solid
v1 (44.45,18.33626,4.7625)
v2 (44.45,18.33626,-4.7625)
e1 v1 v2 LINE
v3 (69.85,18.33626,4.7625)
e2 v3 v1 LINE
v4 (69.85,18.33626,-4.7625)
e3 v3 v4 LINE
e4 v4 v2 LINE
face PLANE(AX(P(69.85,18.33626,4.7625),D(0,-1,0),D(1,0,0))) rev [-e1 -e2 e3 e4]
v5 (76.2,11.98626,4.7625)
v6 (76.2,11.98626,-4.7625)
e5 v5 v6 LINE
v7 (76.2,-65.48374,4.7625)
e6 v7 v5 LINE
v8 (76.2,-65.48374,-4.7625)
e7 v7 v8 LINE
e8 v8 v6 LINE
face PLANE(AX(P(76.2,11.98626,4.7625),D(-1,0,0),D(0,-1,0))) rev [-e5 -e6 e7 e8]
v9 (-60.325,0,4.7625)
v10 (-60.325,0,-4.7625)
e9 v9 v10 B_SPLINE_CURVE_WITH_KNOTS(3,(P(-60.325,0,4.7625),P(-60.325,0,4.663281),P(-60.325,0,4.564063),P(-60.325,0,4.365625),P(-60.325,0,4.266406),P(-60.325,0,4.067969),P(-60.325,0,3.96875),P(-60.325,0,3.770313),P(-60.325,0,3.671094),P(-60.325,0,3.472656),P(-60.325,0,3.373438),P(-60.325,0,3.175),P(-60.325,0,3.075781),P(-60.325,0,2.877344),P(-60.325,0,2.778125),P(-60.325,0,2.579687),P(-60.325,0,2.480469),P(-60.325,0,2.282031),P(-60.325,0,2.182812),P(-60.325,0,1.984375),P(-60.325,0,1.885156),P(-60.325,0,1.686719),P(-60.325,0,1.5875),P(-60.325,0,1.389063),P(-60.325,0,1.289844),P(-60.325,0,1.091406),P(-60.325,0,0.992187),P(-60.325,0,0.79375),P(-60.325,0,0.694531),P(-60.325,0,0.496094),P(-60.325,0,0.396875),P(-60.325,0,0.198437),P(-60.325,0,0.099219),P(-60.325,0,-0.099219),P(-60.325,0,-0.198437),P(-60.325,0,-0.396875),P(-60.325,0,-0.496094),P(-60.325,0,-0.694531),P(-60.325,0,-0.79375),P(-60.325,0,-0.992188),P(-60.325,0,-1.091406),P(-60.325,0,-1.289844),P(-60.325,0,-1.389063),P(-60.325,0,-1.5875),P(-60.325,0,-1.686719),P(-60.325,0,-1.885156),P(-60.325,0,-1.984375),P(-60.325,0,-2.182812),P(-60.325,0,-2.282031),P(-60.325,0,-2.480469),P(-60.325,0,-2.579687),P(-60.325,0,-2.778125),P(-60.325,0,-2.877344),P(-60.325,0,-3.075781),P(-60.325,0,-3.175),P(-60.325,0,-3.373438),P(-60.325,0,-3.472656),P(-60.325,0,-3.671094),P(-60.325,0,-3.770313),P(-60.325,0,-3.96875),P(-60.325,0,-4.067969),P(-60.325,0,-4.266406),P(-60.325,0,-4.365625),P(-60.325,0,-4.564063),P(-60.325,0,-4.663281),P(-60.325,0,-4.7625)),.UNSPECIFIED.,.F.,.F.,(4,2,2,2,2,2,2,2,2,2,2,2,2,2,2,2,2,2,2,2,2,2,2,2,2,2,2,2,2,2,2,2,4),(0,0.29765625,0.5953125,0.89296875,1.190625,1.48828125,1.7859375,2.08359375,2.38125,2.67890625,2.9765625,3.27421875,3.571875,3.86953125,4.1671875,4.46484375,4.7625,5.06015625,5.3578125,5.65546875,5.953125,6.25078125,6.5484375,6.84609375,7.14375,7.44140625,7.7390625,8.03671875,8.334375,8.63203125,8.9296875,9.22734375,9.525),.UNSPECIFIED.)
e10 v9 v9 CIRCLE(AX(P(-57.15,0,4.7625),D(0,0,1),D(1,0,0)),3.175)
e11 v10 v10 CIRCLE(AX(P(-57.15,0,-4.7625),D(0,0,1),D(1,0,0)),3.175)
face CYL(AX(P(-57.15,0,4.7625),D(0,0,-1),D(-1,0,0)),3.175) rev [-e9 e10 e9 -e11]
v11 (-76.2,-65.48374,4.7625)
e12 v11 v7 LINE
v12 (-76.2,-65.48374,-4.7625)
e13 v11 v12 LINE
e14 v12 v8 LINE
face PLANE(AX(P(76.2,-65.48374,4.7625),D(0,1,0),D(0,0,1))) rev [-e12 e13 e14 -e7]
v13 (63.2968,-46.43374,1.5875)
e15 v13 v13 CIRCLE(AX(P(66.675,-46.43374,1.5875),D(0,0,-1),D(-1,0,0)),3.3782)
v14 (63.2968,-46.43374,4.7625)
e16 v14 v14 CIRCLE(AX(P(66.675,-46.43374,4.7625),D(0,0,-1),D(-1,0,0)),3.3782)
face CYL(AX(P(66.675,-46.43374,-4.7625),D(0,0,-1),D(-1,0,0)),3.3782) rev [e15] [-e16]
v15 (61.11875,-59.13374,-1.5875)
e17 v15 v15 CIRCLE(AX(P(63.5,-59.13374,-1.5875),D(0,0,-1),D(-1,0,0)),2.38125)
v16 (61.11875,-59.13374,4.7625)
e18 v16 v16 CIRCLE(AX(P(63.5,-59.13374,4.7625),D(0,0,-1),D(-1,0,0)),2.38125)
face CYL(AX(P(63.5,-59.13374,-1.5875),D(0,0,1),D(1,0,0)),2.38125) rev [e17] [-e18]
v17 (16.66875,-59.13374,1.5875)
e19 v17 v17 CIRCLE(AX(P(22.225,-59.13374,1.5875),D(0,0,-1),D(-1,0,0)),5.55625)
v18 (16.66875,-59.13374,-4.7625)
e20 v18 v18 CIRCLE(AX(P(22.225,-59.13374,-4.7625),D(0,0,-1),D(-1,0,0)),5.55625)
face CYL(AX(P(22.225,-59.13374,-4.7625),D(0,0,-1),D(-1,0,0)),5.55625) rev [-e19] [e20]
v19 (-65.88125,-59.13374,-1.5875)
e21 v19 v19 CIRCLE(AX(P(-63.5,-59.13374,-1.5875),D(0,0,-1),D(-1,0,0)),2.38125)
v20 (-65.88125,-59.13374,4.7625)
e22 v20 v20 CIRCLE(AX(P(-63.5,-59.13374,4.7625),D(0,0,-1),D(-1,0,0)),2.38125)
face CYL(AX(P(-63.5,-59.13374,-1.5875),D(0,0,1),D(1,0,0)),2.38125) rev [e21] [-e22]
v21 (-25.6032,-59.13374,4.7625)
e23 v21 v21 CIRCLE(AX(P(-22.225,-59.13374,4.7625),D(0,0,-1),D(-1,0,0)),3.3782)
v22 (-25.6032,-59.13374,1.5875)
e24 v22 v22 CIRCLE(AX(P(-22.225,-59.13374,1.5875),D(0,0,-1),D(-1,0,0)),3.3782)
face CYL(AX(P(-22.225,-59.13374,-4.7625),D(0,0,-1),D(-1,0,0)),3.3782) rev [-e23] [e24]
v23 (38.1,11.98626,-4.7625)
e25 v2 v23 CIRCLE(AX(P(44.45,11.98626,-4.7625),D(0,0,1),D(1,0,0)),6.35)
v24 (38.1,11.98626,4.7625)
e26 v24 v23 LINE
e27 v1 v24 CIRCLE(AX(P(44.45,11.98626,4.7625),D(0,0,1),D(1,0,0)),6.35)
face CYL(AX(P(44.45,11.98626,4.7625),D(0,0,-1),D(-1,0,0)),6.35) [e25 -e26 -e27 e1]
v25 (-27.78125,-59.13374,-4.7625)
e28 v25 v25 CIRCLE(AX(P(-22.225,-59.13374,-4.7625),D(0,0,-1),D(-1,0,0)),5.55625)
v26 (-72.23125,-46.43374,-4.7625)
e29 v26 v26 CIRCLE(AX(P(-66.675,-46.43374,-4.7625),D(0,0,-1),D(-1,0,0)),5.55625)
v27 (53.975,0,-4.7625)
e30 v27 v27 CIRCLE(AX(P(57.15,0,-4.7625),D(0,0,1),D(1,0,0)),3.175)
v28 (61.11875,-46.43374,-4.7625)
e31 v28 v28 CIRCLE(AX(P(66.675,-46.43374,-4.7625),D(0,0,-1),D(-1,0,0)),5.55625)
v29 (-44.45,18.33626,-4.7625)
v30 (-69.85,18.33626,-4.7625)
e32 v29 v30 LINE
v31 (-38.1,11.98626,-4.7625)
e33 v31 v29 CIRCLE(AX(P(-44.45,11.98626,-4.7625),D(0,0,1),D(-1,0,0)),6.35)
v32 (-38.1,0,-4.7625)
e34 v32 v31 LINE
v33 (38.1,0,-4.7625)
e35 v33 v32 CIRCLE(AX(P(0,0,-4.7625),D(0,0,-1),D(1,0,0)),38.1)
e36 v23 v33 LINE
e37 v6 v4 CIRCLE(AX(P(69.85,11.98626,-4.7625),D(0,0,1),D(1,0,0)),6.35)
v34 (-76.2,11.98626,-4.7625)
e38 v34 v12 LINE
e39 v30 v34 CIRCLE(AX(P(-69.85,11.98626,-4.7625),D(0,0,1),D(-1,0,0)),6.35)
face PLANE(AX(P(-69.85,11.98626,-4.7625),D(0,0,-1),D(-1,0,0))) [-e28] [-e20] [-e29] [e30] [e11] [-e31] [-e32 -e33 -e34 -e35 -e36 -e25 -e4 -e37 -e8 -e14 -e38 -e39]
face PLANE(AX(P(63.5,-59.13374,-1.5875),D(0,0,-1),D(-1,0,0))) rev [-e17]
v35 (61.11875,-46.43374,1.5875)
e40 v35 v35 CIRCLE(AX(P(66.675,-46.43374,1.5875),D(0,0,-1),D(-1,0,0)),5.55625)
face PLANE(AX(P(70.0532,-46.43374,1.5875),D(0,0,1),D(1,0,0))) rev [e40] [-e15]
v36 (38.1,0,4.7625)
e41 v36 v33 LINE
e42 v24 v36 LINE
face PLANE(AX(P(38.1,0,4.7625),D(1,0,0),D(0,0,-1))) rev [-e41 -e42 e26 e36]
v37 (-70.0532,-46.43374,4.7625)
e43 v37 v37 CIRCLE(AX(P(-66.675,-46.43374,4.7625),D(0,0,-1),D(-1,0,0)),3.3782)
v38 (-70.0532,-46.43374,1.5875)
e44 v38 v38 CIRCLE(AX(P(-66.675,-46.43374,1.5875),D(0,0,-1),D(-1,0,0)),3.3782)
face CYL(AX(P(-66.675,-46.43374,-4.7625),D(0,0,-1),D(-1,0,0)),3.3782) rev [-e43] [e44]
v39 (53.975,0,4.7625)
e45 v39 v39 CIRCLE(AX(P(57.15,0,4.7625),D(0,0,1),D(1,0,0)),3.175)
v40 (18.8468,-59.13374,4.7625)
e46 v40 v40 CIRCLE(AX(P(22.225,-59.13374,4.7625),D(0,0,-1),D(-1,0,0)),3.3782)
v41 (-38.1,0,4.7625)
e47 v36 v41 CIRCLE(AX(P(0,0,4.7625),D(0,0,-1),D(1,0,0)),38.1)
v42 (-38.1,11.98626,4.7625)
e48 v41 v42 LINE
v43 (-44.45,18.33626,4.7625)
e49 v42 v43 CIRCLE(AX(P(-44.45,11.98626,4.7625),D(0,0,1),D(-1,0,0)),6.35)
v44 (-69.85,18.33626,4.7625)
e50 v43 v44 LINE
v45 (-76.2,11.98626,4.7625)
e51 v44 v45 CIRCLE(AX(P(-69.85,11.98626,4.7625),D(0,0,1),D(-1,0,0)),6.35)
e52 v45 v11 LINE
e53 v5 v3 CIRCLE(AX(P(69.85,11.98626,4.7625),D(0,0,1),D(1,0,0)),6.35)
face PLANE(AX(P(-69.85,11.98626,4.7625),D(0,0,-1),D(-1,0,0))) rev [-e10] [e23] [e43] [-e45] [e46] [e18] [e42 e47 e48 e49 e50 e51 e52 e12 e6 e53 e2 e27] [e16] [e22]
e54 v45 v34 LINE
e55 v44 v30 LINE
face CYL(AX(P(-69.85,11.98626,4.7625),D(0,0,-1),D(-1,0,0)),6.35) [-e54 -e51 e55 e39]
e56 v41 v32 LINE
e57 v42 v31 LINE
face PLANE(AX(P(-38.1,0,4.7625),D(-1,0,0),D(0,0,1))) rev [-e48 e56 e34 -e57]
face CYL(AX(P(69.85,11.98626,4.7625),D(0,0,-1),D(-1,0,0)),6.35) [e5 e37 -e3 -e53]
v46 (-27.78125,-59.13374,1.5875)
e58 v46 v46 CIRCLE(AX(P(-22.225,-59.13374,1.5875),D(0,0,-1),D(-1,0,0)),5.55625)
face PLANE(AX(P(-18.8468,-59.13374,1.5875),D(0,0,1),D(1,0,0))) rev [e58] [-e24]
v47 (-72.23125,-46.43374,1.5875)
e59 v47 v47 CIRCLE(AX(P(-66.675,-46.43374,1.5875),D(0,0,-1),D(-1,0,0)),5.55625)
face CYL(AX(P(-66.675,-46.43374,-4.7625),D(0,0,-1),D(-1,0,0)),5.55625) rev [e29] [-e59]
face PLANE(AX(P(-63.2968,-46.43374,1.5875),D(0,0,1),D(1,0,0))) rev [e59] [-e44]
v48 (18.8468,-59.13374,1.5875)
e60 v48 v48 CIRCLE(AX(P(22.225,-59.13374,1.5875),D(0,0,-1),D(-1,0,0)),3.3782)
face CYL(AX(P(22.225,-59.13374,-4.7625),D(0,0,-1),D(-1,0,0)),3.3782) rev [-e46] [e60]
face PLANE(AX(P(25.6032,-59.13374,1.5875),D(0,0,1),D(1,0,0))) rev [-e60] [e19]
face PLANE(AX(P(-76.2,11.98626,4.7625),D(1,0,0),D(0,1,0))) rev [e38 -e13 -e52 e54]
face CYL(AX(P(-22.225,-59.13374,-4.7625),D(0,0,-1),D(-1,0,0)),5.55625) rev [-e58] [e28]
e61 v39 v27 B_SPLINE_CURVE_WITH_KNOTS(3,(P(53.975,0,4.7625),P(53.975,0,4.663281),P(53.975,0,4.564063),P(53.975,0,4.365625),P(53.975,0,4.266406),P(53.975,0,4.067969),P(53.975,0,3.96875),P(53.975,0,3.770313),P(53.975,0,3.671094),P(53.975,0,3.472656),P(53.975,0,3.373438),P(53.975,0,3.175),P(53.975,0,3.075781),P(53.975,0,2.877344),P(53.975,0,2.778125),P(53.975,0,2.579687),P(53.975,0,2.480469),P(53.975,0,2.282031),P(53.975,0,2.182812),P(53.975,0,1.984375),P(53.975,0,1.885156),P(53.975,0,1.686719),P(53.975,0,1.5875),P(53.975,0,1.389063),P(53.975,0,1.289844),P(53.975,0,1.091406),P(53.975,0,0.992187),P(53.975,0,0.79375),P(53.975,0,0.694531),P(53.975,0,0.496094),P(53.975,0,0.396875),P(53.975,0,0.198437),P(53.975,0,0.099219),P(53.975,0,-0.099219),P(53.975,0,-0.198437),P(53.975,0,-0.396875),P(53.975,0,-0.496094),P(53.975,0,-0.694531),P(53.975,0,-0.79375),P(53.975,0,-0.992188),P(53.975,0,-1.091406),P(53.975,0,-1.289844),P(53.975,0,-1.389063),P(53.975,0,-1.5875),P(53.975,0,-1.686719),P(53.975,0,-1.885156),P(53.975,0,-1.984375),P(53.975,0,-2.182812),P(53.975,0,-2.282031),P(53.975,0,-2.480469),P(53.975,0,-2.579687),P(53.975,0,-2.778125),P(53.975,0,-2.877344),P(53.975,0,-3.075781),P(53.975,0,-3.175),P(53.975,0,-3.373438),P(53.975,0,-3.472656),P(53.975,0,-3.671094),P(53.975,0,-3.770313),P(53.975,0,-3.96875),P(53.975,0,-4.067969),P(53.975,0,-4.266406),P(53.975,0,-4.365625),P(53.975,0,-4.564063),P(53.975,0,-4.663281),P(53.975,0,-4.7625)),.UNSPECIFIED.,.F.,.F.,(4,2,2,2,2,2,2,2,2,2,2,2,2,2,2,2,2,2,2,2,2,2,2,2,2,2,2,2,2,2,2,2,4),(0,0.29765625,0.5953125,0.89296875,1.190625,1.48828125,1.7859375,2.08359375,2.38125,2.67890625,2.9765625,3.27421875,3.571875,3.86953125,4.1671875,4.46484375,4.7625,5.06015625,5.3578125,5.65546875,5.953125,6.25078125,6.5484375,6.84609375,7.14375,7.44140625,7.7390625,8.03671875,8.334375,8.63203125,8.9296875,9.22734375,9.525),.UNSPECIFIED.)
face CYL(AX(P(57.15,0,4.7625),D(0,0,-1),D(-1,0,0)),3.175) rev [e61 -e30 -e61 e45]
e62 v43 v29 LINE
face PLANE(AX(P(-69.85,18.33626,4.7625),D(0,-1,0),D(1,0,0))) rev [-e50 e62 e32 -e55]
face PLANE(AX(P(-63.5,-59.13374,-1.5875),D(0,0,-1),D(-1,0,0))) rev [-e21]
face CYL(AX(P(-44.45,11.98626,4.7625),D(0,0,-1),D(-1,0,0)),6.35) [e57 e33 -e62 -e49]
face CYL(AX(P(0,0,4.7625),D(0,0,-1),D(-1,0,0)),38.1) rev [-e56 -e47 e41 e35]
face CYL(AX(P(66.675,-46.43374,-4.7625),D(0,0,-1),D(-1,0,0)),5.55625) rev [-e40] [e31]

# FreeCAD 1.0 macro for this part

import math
import FreeCAD as App
import Part
import Sketcher
from FreeCAD import Vector
Q = App.Units.Quantity

doc = App.newDocument("Part")
body = doc.addObject("PartDesign::Body", "Body")

sketch1 = body.newObject("Sketcher::SketchObject", "Sketch")
sketch1.AttachmentSupport = (doc.getObject("XY_Plane"), [""])
sketch1.MapMode = "FlatFace"
sketch1.addGeometry([
    Part.LineSegment(Vector(76.2, -65.5, 0), Vector(76.2, 12, 0)),
    Part.ArcOfCircle(Part.Circle(Vector(69.9, 12, 0), Vector(0, 0, 1), 6.3), math.radians(0), math.radians(90)),
    Part.LineSegment(Vector(69.8, 18.3, 0), Vector(44.5, 18.3, 0)),
    Part.ArcOfCircle(Part.Circle(Vector(44.4, 12, 0), Vector(0, 0, 1), 6.3), math.radians(90), math.radians(180)),
    Part.LineSegment(Vector(38.1, 12, 0), Vector(38.1, 0, 0)),
    Part.ArcOfCircle(Part.Circle(Vector(0, 0, 0), Vector(0, 0, 1), 38.1), math.radians(180), math.radians(360)),
    Part.LineSegment(Vector(-38.1, 0, 0), Vector(-38.1, 12, 0)),
    Part.ArcOfCircle(Part.Circle(Vector(-44.4, 12, 0), Vector(0, 0, 1), 6.3), math.radians(0), math.radians(90)),
    Part.LineSegment(Vector(-44.5, 18.3, 0), Vector(-69.8, 18.3, 0)),
    Part.ArcOfCircle(Part.Circle(Vector(-69.9, 12, 0), Vector(0, 0, 1), 6.3), math.radians(90), math.radians(180)),
    Part.LineSegment(Vector(-76.2, 12, 0), Vector(-76.2, -65.5, 0)),
    Part.LineSegment(Vector(-76.2, -65.5, 0), Vector(76.2, -65.5, 0)),
    Part.Circle(Vector(57.1, 0, 0), Vector(0, 0, 1), 3.2),
    Part.Circle(Vector(-57.1, 0, 0), Vector(0, 0, 1), 3.2),
], False)
sketch1.addConstraint([
    Sketcher.Constraint("Tangent", 0, 2, 1, 1),
    Sketcher.Constraint("Tangent", 1, 2, 2, 1),
    Sketcher.Constraint("Tangent", 2, 2, 3, 1),
    Sketcher.Constraint("Tangent", 3, 2, 4, 1),
    Sketcher.Constraint("Tangent", 4, 2, 5, 2),
    Sketcher.Constraint("Tangent", 5, 1, 6, 1),
    Sketcher.Constraint("Tangent", 6, 2, 7, 1),
    Sketcher.Constraint("Tangent", 7, 2, 8, 1),
    Sketcher.Constraint("Tangent", 8, 2, 9, 1),
    Sketcher.Constraint("Tangent", 9, 2, 10, 1),
    Sketcher.Constraint("Coincident", 10, 2, 11, 1),
    Sketcher.Constraint("Coincident", 11, 2, 0, 1),
    Sketcher.Constraint("Vertical", 0),
    Sketcher.Constraint("Horizontal", 2),
    Sketcher.Constraint("Vertical", 4),
    Sketcher.Constraint("Vertical", 6),
    Sketcher.Constraint("Horizontal", 8),
    Sketcher.Constraint("Vertical", 10),
    Sketcher.Constraint("Horizontal", 11),
    Sketcher.Constraint("Coincident", 5, 3, -1, 1),
    Sketcher.Constraint("Equal", 1, 3),
    Sketcher.Constraint("Equal", 3, 7),
    Sketcher.Constraint("Equal", 7, 9),
    Sketcher.Constraint("Equal", 12, 13),
    Sketcher.Constraint("Symmetric", 12, 3, 13, 3, -1, 1),
    Sketcher.Constraint("Symmetric", 1, 3, 9, 3, -2),
    Sketcher.Constraint("PointOnObject", 12, 3, -1),
    Sketcher.Constraint("Radius", 5, Q("1.5 in")),
    Sketcher.Constraint("Diameter", 12, Q("0.25 in")),
    Sketcher.Constraint("DistanceX", 2, 2, 2, 1, Q("1 in")),
    Sketcher.Constraint("DistanceX", 11, 1, 11, 2, Q("6 in")),
    Sketcher.Constraint("DistanceX", 7, 3, 12, 3, Q("4 in")),
    Sketcher.Constraint("DistanceY", 0, 1, 0, 2, Q("3.05 in")),
    Sketcher.Constraint("DistanceY", 4, 2, 4, 1, Q("0.4719 in")),
])
pad1 = body.newObject("PartDesign::Pad", "Pad")
pad1.Profile = sketch1
pad1.Length = Q("0.375 in")
pad1.Midplane = True

sketch2 = body.newObject("Sketcher::SketchObject", "Sketch001")
sketch2.AttachmentSupport = (doc.getObject("XY_Plane"), [""])
sketch2.MapMode = "FlatFace"
sketch2.AttachmentOffset = App.Placement(Vector(0, 0, -0.1875 * 25.4), App.Rotation())
sketch2.addGeometry([
    Part.Circle(Vector(-66.7, -46.4, 0), Vector(0, 0, 1), 3.4),
    Part.Circle(Vector(-22.2, -59.1, 0), Vector(0, 0, 1), 3.4),
    Part.Circle(Vector(66.7, -46.4, 0), Vector(0, 0, 1), 3.4),
    Part.Circle(Vector(22.2, -59.1, 0), Vector(0, 0, 1), 3.4),
], False)
sketch2.addConstraint([
    Sketcher.Constraint("Equal", 0, 1),
    Sketcher.Constraint("Equal", 1, 2),
    Sketcher.Constraint("Equal", 2, 3),
    Sketcher.Constraint("Symmetric", 0, 3, 2, 3, -2),
    Sketcher.Constraint("Symmetric", 1, 3, 3, 3, -2),
    Sketcher.Constraint("Diameter", 0, Q("0.266 in")),
    Sketcher.Constraint("DistanceY", 1, 3, 0, 3, Q("0.5 in")),
    Sketcher.Constraint("DistanceX", 1, 3, 2, 3, Q("3.5 in")),
    Sketcher.Constraint("DistanceX", 0, 3, 1, 3, Q("1.75 in")),
    Sketcher.Constraint("DistanceY", 0, 3, -1, 1, Q("1.8281 in")),
])
doc.recompute()
hole = body.newObject("PartDesign::Hole", "Hole")
hole.Profile = sketch2
hole.ThreadType = "None"
hole.Diameter = Q("0.266 in")
hole.DepthType = "ThroughAll"
hole.HoleCutType = "Counterbore"
hole.HoleCutDiameter = Q("0.4375 in")
hole.HoleCutDepth = Q("0.25 in")
hole.Reversed = True

sketch3 = body.newObject("Sketcher::SketchObject", "Sketch002")
sketch3.AttachmentSupport = (doc.getObject("XY_Plane"), [""])
sketch3.MapMode = "FlatFace"
sketch3.AttachmentOffset = App.Placement(Vector(0, 0, 0.1875 * 25.4), App.Rotation())
sketch3.addGeometry([
    Part.Circle(Vector(-63.5, -59.1, 0), Vector(0, 0, 1), 2.4),
    Part.Circle(Vector(63.5, -59.1, 0), Vector(0, 0, 1), 2.4),
], False)
sketch3.addConstraint([
    Sketcher.Constraint("Equal", 0, 1),
    Sketcher.Constraint("Symmetric", 0, 3, 1, 3, -2),
    Sketcher.Constraint("Diameter", 0, Q("0.1875 in")),
    Sketcher.Constraint("DistanceX", 0, 3, 1, 3, Q("5 in")),
    Sketcher.Constraint("DistanceY", 0, 3, -1, 1, Q("2.3281 in")),
])
pocket1 = body.newObject("PartDesign::Pocket", "Pocket")
pocket1.Profile = sketch3
pocket1.Length = Q("0.25 in")

doc.recompute()
